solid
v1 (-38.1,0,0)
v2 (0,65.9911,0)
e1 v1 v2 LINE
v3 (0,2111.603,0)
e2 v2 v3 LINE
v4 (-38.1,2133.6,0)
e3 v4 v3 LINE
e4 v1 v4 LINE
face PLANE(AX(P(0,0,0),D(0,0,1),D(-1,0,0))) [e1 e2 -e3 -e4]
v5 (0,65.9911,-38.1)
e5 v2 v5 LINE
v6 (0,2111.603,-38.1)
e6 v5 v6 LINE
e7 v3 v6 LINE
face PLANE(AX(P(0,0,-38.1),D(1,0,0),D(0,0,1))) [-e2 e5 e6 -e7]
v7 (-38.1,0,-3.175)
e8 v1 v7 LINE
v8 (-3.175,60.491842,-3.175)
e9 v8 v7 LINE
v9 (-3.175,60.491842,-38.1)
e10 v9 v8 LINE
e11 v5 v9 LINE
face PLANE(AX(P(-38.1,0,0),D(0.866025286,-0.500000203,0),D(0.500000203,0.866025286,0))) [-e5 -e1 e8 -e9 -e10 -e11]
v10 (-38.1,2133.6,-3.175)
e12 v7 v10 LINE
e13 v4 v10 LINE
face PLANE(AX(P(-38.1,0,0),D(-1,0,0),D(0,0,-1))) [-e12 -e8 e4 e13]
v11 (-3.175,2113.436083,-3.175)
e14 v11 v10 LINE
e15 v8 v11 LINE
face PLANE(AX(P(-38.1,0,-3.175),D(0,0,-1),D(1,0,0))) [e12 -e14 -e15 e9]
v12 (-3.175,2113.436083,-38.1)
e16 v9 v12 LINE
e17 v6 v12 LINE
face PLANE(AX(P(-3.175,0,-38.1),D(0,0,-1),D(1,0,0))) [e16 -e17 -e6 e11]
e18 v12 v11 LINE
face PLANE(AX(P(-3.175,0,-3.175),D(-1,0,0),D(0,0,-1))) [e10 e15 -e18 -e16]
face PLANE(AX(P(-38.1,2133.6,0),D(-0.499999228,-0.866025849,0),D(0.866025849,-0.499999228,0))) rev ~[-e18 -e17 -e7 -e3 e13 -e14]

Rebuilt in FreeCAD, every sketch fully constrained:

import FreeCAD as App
import Part
import Sketcher
from FreeCAD import Vector
Q = App.Units.Quantity


def add_polygon(sketch, points):
    """Adds a closed chain of lines whose ends are joined by coincident constraints."""
    first, n = sketch.GeometryCount, len(points)
    for a, b in zip(points, points[1:] + points[:1]):
        sketch.addGeometry(Part.LineSegment(App.Vector(*a, 0), App.Vector(*b, 0)), False)
    for i in range(n):
        sketch.addConstraint(Sketcher.Constraint("Coincident", first + i, 2, first + (i + 1) % n, 1))

doc = App.newDocument("Part")
params = doc.addObject("Spreadsheet::Sheet", "Params")
for row, (alias, value) in enumerate([
    ("sketch1_width", "1.5 in"),
    ("sketch1_width2", "0.125 in"),
    ("pad1_length", "84 in"),
    ("sketch2_length", "3 in"),
    ("sketch2_width", "1.5 in"),
    ("pocket1_length", "3 in"),
    ("sketch3_width", "1.5 in"),
    ("pocket2_length", "3 in"),
], start=1):
    params.set(f"A{row}", alias)
    params.set(f"B{row}", "=" + value)
    params.setAlias(f"B{row}", alias)

body = doc.addObject("PartDesign::Body", "Body")

# Sketch on XZ plane
sketch1 = doc.addObject("Sketcher::SketchObject", "Sketch")
body.addObject(sketch1)
sketch1.AttachmentSupport = (doc.XZ_Plane, [""])
sketch1.MapMode = "FlatFace"
add_polygon(sketch1, [(-38.1, 0), (0, 0), (0, -38.1), (-3.2, -38.1), (-3.2, -3.2), (-38.1, -3.2)])  # lines 0-5
sketch1.addConstraint([
    Sketcher.Constraint("Horizontal", 0),
    Sketcher.Constraint("Vertical", 1),
    Sketcher.Constraint("Horizontal", 2),
    Sketcher.Constraint("Vertical", 3),
    Sketcher.Constraint("Horizontal", 4),
    Sketcher.Constraint("Vertical", 5),
    Sketcher.Constraint("Coincident", 0, 2, -1, 1),
    Sketcher.Constraint("Equal", 0, 1),
    Sketcher.Constraint("Equal", 4, 3),
    Sketcher.Constraint("DistanceX", 0, 1, 0, 2, Q("1.5 in")),
    Sketcher.Constraint("DistanceX", 2, 2, 2, 1, Q("0.125 in")),
])
sketch1.setExpression("Constraints[15]", "Params.sketch1_width")
sketch1.setExpression("Constraints[16]", "Params.sketch1_width2")
pad1 = doc.addObject("PartDesign::Pad", "Pad")
body.addObject(pad1)
pad1.Profile = sketch1
pad1.setExpression("Length", "Params.pad1_length")
pad1.Reversed = True

# Sketch on XY plane
sketch2 = doc.addObject("Sketcher::SketchObject", "Sketch001")
body.addObject(sketch2)
sketch2.AttachmentSupport = (doc.XY_Plane, [""])
sketch2.MapMode = "FlatFace"
add_polygon(sketch2, [(-38, 0), (0, 0), (0, 66)])  # lines 0-2
sketch2.addConstraint([
    Sketcher.Constraint("Horizontal", 0),
    Sketcher.Constraint("Vertical", 1),
    Sketcher.Constraint("Coincident", 0, 2, -1, 1),
    Sketcher.Constraint("Distance", 2, Q("3 in")),
    Sketcher.Constraint("DistanceX", 0, 1, 0, 2, Q("1.5 in")),
])
sketch2.setExpression("Constraints[6]", "Params.sketch2_length")
sketch2.setExpression("Constraints[7]", "Params.sketch2_width")
pocket1 = doc.addObject("PartDesign::Pocket", "Pocket")
body.addObject(pocket1)
pocket1.Profile = sketch2
pocket1.setExpression("Length", "Params.pocket1_length")

# Sketch on XY plane
sketch3 = doc.addObject("Sketcher::SketchObject", "Sketch002")
body.addObject(sketch3)
sketch3.AttachmentSupport = (doc.XY_Plane, [""])
sketch3.MapMode = "FlatFace"
add_polygon(sketch3, [(0, 2134), (-38, 2134), (0, 2112)])  # lines 0-2
sketch3.addConstraint([
    Sketcher.Constraint("Horizontal", 0),
    Sketcher.Constraint("Vertical", 2),
    Sketcher.Constraint("PointOnObject", 1, 2, -2),
    Sketcher.Constraint("DistanceX", 0, 2, 0, 1, Q("1.5 in")),
    Sketcher.Constraint("DistanceY", -1, 1, 0, 2, Q("84 in")),
    Sketcher.Constraint("Angle", 1, Q("-30 deg")),
])
sketch3.setExpression("Constraints[6]", "Params.sketch3_width")
pocket2 = doc.addObject("PartDesign::Pocket", "Pocket001")
body.addObject(pocket2)
pocket2.Profile = sketch3
pocket2.setExpression("Length", "Params.pocket2_length")

doc.recompute()
